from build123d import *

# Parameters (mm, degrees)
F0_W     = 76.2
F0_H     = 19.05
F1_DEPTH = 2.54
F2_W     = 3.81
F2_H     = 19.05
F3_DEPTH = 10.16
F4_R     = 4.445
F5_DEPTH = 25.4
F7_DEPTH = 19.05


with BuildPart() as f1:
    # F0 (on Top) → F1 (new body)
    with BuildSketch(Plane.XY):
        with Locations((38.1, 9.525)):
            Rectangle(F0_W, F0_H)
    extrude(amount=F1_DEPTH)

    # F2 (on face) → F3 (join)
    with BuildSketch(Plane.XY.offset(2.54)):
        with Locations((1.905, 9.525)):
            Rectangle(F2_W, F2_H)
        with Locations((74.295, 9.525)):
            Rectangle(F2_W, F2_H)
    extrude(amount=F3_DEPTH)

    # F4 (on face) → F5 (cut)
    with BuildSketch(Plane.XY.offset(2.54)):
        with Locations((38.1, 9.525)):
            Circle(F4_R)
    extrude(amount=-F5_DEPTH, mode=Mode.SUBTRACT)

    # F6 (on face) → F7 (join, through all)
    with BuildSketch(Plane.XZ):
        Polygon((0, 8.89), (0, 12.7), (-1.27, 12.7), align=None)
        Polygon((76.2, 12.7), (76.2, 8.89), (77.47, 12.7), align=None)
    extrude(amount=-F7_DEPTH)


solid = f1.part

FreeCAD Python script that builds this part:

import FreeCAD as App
import Part
import Sketcher
Q = App.Units.Quantity

doc = App.newDocument("Part")
params = doc.addObject("Spreadsheet::Sheet", "Params")
for row, (alias, value) in enumerate([
    ("sketch1_width", "3 in"),
    ("sketch1_height", "0.75 in"),
    ("pad1_length", "0.1 in"),
    ("sketch2_width", "0.15 in"),
    ("sketch2_height", "0.75 in"),
    ("pad2_length", "0.4 in"),
    ("sketch3_diameter", "0.35 in"),
    ("pocket1_length", "1 in"),
    ("sketch4_width", "0.05 in"),
    ("sketch4_height", "0.15 in"),
    ("pad3_length", "0.75 in"),
], start=1):
    params.set(f"A{row}", alias)
    params.set(f"B{row}", "=" + value)
    params.setAlias(f"B{row}", alias)

body = doc.addObject("PartDesign::Body", "Body")

sketch1 = body.newObject("Sketcher::SketchObject", "Sketch")
sketch1.AttachmentSupport = (doc.getObject("XY_Plane"), [""])
sketch1.MapMode = "FlatFace"
sketch1.addGeometry(Part.LineSegment(App.Vector(0, 19, 0), App.Vector(0, 0, 0)), False)
sketch1.addGeometry(Part.LineSegment(App.Vector(0, 0, 0), App.Vector(76, 0, 0)), False)
sketch1.addGeometry(Part.LineSegment(App.Vector(76, 0, 0), App.Vector(76, 19, 0)), False)
sketch1.addGeometry(Part.LineSegment(App.Vector(76, 19, 0), App.Vector(0, 19, 0)), False)
sketch1.addConstraint(Sketcher.Constraint("Coincident", 0, 2, 1, 1))
sketch1.addConstraint(Sketcher.Constraint("Coincident", 1, 2, 2, 1))
sketch1.addConstraint(Sketcher.Constraint("Coincident", 2, 2, 3, 1))
sketch1.addConstraint(Sketcher.Constraint("Coincident", 3, 2, 0, 1))
sketch1.addConstraint(Sketcher.Constraint("Vertical", 0))
sketch1.addConstraint(Sketcher.Constraint("Horizontal", 1))
sketch1.addConstraint(Sketcher.Constraint("Vertical", 2))
sketch1.addConstraint(Sketcher.Constraint("Horizontal", 3))
sketch1.addConstraint(Sketcher.Constraint("Coincident", 0, 2, -1, 1))
sketch1.addConstraint(Sketcher.Constraint("DistanceX", 1, 1, 1, 2, Q("3 in")))
sketch1.addConstraint(Sketcher.Constraint("DistanceY", 0, 2, 0, 1, Q("0.75 in")))
sketch1.setExpression("Constraints[9]", "Params.sketch1_width")
sketch1.setExpression("Constraints[10]", "Params.sketch1_height")
pad1 = body.newObject("PartDesign::Pad", "Pad")
pad1.Profile = sketch1
pad1.setExpression("Length", "Params.pad1_length")

sketch2 = body.newObject("Sketcher::SketchObject", "Sketch001")
sketch2.AttachmentSupport = (doc.getObject("XY_Plane"), [""])
sketch2.MapMode = "FlatFace"
sketch2.AttachmentOffset = App.Placement(App.Vector(0, 0, 0.1 * 25.4), App.Rotation())
sketch2.addGeometry(Part.LineSegment(App.Vector(0, 19.1, 0), App.Vector(0, 0, 0)), False)
sketch2.addGeometry(Part.LineSegment(App.Vector(0, 0, 0), App.Vector(3.8, 0, 0)), False)
sketch2.addGeometry(Part.LineSegment(App.Vector(3.8, 0, 0), App.Vector(3.8, 19.1, 0)), False)
sketch2.addGeometry(Part.LineSegment(App.Vector(3.8, 19.1, 0), App.Vector(0, 19.1, 0)), False)
sketch2.addGeometry(Part.LineSegment(App.Vector(72.4, 19.1, 0), App.Vector(72.4, 0, 0)), False)
sketch2.addGeometry(Part.LineSegment(App.Vector(72.4, 0, 0), App.Vector(76.2, 0, 0)), False)
sketch2.addGeometry(Part.LineSegment(App.Vector(76.2, 0, 0), App.Vector(76.2, 19.1, 0)), False)
sketch2.addGeometry(Part.LineSegment(App.Vector(76.2, 19.1, 0), App.Vector(72.4, 19.1, 0)), False)
sketch2.addConstraint(Sketcher.Constraint("Coincident", 0, 2, 1, 1))
sketch2.addConstraint(Sketcher.Constraint("Coincident", 1, 2, 2, 1))
sketch2.addConstraint(Sketcher.Constraint("Coincident", 2, 2, 3, 1))
sketch2.addConstraint(Sketcher.Constraint("Coincident", 3, 2, 0, 1))
sketch2.addConstraint(Sketcher.Constraint("Coincident", 4, 2, 5, 1))
sketch2.addConstraint(Sketcher.Constraint("Coincident", 5, 2, 6, 1))
sketch2.addConstraint(Sketcher.Constraint("Coincident", 6, 2, 7, 1))
sketch2.addConstraint(Sketcher.Constraint("Coincident", 7, 2, 4, 1))
sketch2.addConstraint(Sketcher.Constraint("Vertical", 0))
sketch2.addConstraint(Sketcher.Constraint("Horizontal", 1))
sketch2.addConstraint(Sketcher.Constraint("Vertical", 2))
sketch2.addConstraint(Sketcher.Constraint("Horizontal", 3))
sketch2.addConstraint(Sketcher.Constraint("Vertical", 4))
sketch2.addConstraint(Sketcher.Constraint("Horizontal", 5))
sketch2.addConstraint(Sketcher.Constraint("Vertical", 6))
sketch2.addConstraint(Sketcher.Constraint("Horizontal", 7))
sketch2.addConstraint(Sketcher.Constraint("Coincident", 0, 2, -1, 1))
sketch2.addConstraint(Sketcher.Constraint("PointOnObject", 4, 2, -1))
sketch2.addConstraint(Sketcher.Constraint("Horizontal", 3, 2, 6, 2))
sketch2.addConstraint(Sketcher.Constraint("Equal", 3, 5))
sketch2.addConstraint(Sketcher.Constraint("DistanceX", -1, 1, 5, 2, Q("3 in")))
sketch2.addConstraint(Sketcher.Constraint("DistanceX", 1, 1, 1, 2, Q("0.15 in")))
sketch2.addConstraint(Sketcher.Constraint("DistanceY", 0, 2, 0, 1, Q("0.75 in")))
sketch2.setExpression("Constraints[21]", "Params.sketch2_width")
sketch2.setExpression("Constraints[22]", "Params.sketch2_height")
pad2 = body.newObject("PartDesign::Pad", "Pad001")
pad2.Profile = sketch2
pad2.setExpression("Length", "Params.pad2_length")

sketch3 = body.newObject("Sketcher::SketchObject", "Sketch002")
sketch3.AttachmentSupport = (doc.getObject("XY_Plane"), [""])
sketch3.MapMode = "FlatFace"
sketch3.AttachmentOffset = App.Placement(App.Vector(0, 0, 0.1 * 25.4), App.Rotation())
sketch3.addGeometry(Part.Circle(App.Vector(38.1, 9.5, 0), App.Vector(0, 0, 1), 4.4), False)
sketch3.addConstraint(Sketcher.Constraint("Diameter", 0, Q("0.35 in")))
sketch3.addConstraint(Sketcher.Constraint("DistanceX", -1, 1, 0, 3, Q("1.5 in")))
sketch3.addConstraint(Sketcher.Constraint("DistanceY", -1, 1, 0, 3, Q("0.375 in")))
sketch3.setExpression("Constraints[0]", "Params.sketch3_diameter")
pocket1 = body.newObject("PartDesign::Pocket", "Pocket")
pocket1.Profile = sketch3
pocket1.setExpression("Length", "Params.pocket1_length")

sketch4 = body.newObject("Sketcher::SketchObject", "Sketch003")
sketch4.AttachmentSupport = (doc.getObject("XZ_Plane"), [""])
sketch4.MapMode = "FlatFace"
sketch4.addGeometry(Part.LineSegment(App.Vector(0, 8.9, 0), App.Vector(0, 12.7, 0)), False)
sketch4.addGeometry(Part.LineSegment(App.Vector(0, 12.7, 0), App.Vector(-1.3, 12.7, 0)), False)
sketch4.addGeometry(Part.LineSegment(App.Vector(-1.3, 12.7, 0), App.Vector(0, 8.9, 0)), False)
sketch4.addGeometry(Part.LineSegment(App.Vector(76.2, 12.7, 0), App.Vector(76.2, 8.9, 0)), False)
sketch4.addGeometry(Part.LineSegment(App.Vector(76.2, 8.9, 0), App.Vector(77.5, 12.7, 0)), False)
sketch4.addGeometry(Part.LineSegment(App.Vector(77.5, 12.7, 0), App.Vector(76.2, 12.7, 0)), False)
sketch4.addConstraint(Sketcher.Constraint("Coincident", 0, 2, 1, 1))
sketch4.addConstraint(Sketcher.Constraint("Coincident", 1, 2, 2, 1))
sketch4.addConstraint(Sketcher.Constraint("Coincident", 2, 2, 0, 1))
sketch4.addConstraint(Sketcher.Constraint("Coincident", 3, 2, 4, 1))
sketch4.addConstraint(Sketcher.Constraint("Coincident", 4, 2, 5, 1))
sketch4.addConstraint(Sketcher.Constraint("Coincident", 5, 2, 3, 1))
sketch4.addConstraint(Sketcher.Constraint("Vertical", 0))
sketch4.addConstraint(Sketcher.Constraint("Horizontal", 1))
sketch4.addConstraint(Sketcher.Constraint("Vertical", 3))
sketch4.addConstraint(Sketcher.Constraint("Horizontal", 5))
sketch4.addConstraint(Sketcher.Constraint("PointOnObject", 0, 2, -2))
sketch4.addConstraint(Sketcher.Constraint("Horizontal", 2, 2, 3, 2))
sketch4.addConstraint(Sketcher.Constraint("Horizontal", 1, 2, 4, 2))
sketch4.addConstraint(Sketcher.Constraint("Equal", 1, 5))
sketch4.addConstraint(Sketcher.Constraint("DistanceX", -1, 1, 3, 2, Q("3 in")))
sketch4.addConstraint(Sketcher.Constraint("DistanceX", 1, 2, 1, 1, Q("0.05 in")))
sketch4.addConstraint(Sketcher.Constraint("DistanceY", 0, 1, 0, 2, Q("0.15 in")))
sketch4.addConstraint(Sketcher.Constraint("DistanceY", -1, 1, 0, 2, Q("0.5 in")))
sketch4.setExpression("Constraints[15]", "Params.sketch4_width")
sketch4.setExpression("Constraints[16]", "Params.sketch4_height")
pad3 = body.newObject("PartDesign::Pad", "Pad002")
pad3.Profile = sketch4
pad3.setExpression("Length", "Params.pad3_length")
pad3.Reversed = True

doc.recompute()
